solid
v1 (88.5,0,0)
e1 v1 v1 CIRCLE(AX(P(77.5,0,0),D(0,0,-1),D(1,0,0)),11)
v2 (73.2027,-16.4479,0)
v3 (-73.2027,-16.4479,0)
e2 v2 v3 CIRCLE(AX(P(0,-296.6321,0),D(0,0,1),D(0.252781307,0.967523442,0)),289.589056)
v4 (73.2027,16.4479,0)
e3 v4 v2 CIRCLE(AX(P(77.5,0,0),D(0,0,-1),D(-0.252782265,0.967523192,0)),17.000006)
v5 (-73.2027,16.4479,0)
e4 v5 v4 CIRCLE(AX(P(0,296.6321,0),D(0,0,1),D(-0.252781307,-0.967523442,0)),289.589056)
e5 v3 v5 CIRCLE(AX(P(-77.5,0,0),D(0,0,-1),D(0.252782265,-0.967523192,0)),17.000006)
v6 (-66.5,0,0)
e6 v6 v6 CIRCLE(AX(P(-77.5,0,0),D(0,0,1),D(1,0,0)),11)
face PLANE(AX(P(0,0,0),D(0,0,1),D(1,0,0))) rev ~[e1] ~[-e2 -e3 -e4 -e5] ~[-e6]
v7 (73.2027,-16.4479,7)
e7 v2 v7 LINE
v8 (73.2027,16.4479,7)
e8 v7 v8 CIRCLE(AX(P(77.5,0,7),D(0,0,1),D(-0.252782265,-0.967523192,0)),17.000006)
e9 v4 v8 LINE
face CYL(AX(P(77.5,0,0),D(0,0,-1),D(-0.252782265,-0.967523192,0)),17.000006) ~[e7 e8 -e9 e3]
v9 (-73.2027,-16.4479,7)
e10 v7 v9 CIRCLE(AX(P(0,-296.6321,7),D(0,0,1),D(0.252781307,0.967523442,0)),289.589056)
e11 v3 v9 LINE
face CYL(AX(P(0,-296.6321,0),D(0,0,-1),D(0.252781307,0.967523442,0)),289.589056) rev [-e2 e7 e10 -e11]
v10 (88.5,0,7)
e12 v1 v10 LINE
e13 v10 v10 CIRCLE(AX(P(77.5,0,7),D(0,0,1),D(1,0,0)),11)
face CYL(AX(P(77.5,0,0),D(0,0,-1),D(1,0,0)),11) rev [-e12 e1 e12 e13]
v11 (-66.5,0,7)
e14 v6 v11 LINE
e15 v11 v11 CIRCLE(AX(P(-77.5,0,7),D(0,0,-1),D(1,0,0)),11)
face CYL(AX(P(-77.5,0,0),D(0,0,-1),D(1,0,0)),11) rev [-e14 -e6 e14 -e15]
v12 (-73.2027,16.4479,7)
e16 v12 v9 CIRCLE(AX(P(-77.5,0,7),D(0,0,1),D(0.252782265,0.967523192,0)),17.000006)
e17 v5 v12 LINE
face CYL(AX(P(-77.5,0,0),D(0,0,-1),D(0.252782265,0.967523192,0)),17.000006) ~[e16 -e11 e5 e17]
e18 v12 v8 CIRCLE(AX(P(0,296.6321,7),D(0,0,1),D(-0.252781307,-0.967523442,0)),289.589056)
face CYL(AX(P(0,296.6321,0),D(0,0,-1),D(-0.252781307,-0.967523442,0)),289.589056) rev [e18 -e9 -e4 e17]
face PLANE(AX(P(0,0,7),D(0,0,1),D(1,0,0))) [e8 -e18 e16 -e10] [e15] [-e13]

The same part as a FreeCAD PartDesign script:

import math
import FreeCAD as App
import Part
import Sketcher
Q = App.Units.Quantity

doc = App.newDocument("Part")
body = doc.addObject("PartDesign::Body", "Body")

# Sketch on XY plane
sketch1 = body.newObject("Sketcher::SketchObject", "Sketch")
sketch1.AttachmentSupport = (doc.getObject("XY_Plane"), [""])
sketch1.MapMode = "FlatFace"
sketch1.addGeometry([
    Part.ArcOfCircle(Part.Circle(App.Vector(78, 0, 0), App.Vector(0, 0, 1), 17), math.radians(-105), math.radians(105)),  # 0
    Part.ArcOfCircle(Part.Circle(App.Vector(0, 297, 0), App.Vector(0, 0, 1), 290), math.radians(-105), math.radians(-75)),  # 1
    Part.ArcOfCircle(Part.Circle(App.Vector(-78, 0, 0), App.Vector(0, 0, 1), 17), math.radians(75), math.radians(285)),  # 2
    Part.ArcOfCircle(Part.Circle(App.Vector(0, -297, 0), App.Vector(0, 0, 1), 290), math.radians(75), math.radians(105)),  # 3
    Part.Circle(App.Vector(78, 0, 0), App.Vector(0, 0, 1), 11),  # 4
    Part.Circle(App.Vector(-78, 0, 0), App.Vector(0, 0, 1), 11),  # 5
], False)
sketch1.addConstraint([
    Sketcher.Constraint("Tangent", 0, 2, 1, 2),
    Sketcher.Constraint("Tangent", 1, 1, 2, 1),
    Sketcher.Constraint("Tangent", 2, 2, 3, 2),
    Sketcher.Constraint("Tangent", 3, 1, 0, 1),
    Sketcher.Constraint("Coincident", 4, 3, 0, 3),
    Sketcher.Constraint("Coincident", 5, 3, 2, 3),
    Sketcher.Constraint("Equal", 0, 2),
    Sketcher.Constraint("Equal", 1, 3),
    Sketcher.Constraint("Equal", 4, 5),
    Sketcher.Constraint("Symmetric", 0, 3, 2, 3, -1, 1),
    Sketcher.Constraint("PointOnObject", 0, 3, -1),
    Sketcher.Constraint("Diameter", 4, Q("22 mm")),
    Sketcher.Constraint("Radius", 0, Q("17 mm")),
    Sketcher.Constraint("DistanceX", 2, 3, 0, 3, Q("155 mm")),
    Sketcher.Constraint("Radius", 1, Q("289.589 mm")),
])
pad1 = body.newObject("PartDesign::Pad", "Pad")
pad1.Profile = sketch1
pad1.Length = 7

doc.recompute()
